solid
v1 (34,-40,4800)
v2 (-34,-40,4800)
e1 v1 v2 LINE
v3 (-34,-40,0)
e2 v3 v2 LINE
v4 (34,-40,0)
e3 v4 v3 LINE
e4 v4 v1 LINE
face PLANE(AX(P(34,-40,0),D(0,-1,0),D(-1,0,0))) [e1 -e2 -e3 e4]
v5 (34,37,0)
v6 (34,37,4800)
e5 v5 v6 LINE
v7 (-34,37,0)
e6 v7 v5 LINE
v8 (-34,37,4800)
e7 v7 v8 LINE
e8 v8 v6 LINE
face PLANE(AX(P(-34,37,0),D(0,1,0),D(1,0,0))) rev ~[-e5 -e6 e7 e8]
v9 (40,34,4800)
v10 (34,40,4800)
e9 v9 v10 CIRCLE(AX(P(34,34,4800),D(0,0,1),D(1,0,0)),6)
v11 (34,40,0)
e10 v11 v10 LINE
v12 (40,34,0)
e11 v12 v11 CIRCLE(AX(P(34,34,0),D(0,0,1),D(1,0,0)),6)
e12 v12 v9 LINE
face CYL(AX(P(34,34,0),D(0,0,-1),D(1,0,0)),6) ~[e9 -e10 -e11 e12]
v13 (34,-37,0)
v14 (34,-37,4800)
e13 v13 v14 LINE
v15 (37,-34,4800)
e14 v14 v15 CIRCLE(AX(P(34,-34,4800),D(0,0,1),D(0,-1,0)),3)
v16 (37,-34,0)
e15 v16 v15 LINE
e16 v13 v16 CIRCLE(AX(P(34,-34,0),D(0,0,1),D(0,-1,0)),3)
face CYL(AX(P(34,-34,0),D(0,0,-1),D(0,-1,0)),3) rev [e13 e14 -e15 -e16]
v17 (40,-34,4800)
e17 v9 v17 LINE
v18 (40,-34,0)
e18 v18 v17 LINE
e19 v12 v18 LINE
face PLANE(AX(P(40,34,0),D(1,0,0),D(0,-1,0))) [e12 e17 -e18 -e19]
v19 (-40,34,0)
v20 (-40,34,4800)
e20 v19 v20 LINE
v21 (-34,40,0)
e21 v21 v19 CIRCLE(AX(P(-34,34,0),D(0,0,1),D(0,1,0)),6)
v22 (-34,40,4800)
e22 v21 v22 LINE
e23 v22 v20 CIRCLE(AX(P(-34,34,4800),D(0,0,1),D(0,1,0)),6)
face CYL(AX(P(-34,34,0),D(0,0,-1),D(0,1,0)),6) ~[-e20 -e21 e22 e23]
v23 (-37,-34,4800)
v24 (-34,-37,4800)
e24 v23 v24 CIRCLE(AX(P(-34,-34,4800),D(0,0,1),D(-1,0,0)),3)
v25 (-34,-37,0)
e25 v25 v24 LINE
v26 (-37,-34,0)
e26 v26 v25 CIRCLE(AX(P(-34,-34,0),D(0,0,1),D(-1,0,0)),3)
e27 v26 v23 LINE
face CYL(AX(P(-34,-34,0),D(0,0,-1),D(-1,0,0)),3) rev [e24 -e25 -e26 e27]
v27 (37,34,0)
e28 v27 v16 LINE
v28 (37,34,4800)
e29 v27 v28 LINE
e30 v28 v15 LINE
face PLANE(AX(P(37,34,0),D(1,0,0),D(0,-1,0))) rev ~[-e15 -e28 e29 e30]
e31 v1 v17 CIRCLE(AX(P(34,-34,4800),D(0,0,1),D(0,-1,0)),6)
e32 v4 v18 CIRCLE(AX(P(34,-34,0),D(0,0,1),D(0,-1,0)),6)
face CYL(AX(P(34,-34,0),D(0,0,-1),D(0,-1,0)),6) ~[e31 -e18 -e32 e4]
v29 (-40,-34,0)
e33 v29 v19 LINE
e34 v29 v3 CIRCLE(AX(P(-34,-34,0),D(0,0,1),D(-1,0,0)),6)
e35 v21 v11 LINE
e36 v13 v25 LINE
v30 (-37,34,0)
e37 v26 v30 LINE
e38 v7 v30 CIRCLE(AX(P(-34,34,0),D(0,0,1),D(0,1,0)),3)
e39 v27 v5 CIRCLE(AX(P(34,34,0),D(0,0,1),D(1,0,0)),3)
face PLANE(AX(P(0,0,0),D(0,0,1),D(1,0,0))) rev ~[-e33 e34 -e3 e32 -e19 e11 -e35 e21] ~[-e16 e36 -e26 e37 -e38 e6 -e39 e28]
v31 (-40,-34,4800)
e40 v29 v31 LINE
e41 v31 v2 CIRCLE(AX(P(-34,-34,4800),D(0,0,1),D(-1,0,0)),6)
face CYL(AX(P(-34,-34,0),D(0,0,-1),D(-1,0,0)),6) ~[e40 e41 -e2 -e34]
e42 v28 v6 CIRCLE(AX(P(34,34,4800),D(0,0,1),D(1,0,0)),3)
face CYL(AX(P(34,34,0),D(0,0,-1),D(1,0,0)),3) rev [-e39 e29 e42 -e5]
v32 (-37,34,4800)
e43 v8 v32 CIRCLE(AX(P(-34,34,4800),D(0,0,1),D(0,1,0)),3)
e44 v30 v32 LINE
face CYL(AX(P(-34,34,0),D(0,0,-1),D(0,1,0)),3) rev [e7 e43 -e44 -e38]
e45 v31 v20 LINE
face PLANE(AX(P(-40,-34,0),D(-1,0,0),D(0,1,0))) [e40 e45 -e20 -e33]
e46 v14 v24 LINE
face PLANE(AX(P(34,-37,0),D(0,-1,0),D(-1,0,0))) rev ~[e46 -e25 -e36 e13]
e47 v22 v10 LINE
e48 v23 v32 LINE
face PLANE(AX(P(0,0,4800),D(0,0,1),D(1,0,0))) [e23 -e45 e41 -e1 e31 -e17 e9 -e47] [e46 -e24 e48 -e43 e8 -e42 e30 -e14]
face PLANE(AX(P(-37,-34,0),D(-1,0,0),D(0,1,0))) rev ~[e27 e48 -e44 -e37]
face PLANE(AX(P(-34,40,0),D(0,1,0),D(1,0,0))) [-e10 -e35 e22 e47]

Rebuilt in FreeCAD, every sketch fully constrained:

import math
import FreeCAD as App
import Part
import Sketcher
Q = App.Units.Quantity

doc = App.newDocument("Part")
params = doc.addObject("Spreadsheet::Sheet", "Params")
for row, (alias, value) in enumerate([
    ("sketch1_radius", "6 mm"),
    ("sketch1_radius2", "3 mm"),
    ("pad1_length", "4800 mm"),
], start=1):
    params.set(f"A{row}", alias)
    params.set(f"B{row}", "=" + value)
    params.setAlias(f"B{row}", alias)

body = doc.addObject("PartDesign::Body", "Body")

sketch1 = doc.addObject("Sketcher::SketchObject", "Sketch")
body.addObject(sketch1)
sketch1.AttachmentSupport = (doc.XY_Plane, [""])
sketch1.MapMode = "FlatFace"
sketch1.addGeometry([
    Part.LineSegment(App.Vector(-40, 34, 0), App.Vector(-40, -34, 0)),
    Part.ArcOfCircle(Part.Circle(App.Vector(-34, -34, 0), App.Vector(0, 0, 1), 6), math.radians(180), math.radians(270)),
    Part.LineSegment(App.Vector(-34, -40, 0), App.Vector(34, -40, 0)),
    Part.ArcOfCircle(Part.Circle(App.Vector(34, -34, 0), App.Vector(0, 0, 1), 6), math.radians(-90), math.radians(0)),
    Part.LineSegment(App.Vector(40, -34, 0), App.Vector(40, 34, 0)),
    Part.ArcOfCircle(Part.Circle(App.Vector(34, 34, 0), App.Vector(0, 0, 1), 6), math.radians(0), math.radians(90)),
    Part.LineSegment(App.Vector(34, 40, 0), App.Vector(-34, 40, 0)),
    Part.ArcOfCircle(Part.Circle(App.Vector(-34, 34, 0), App.Vector(0, 0, 1), 6), math.radians(90), math.radians(180)),
    Part.ArcOfCircle(Part.Circle(App.Vector(-34, 34, 0), App.Vector(0, 0, 1), 3), math.radians(90), math.radians(180)),
    Part.LineSegment(App.Vector(-34, 37, 0), App.Vector(34, 37, 0)),
    Part.ArcOfCircle(Part.Circle(App.Vector(34, 34, 0), App.Vector(0, 0, 1), 3), math.radians(0), math.radians(90)),
    Part.LineSegment(App.Vector(37, 34, 0), App.Vector(37, -34, 0)),
    Part.ArcOfCircle(Part.Circle(App.Vector(34, -34, 0), App.Vector(0, 0, 1), 3), math.radians(-90), math.radians(0)),
    Part.LineSegment(App.Vector(34, -37, 0), App.Vector(-34, -37, 0)),
    Part.ArcOfCircle(Part.Circle(App.Vector(-34, -34, 0), App.Vector(0, 0, 1), 3), math.radians(180), math.radians(270)),
    Part.LineSegment(App.Vector(-37, -34, 0), App.Vector(-37, 34, 0)),
], False)
sketch1.addConstraint([
    Sketcher.Constraint("Tangent", 0, 2, 1, 1),
    Sketcher.Constraint("Tangent", 1, 2, 2, 1),
    Sketcher.Constraint("Tangent", 2, 2, 3, 1),
    Sketcher.Constraint("Tangent", 3, 2, 4, 1),
    Sketcher.Constraint("Tangent", 4, 2, 5, 1),
    Sketcher.Constraint("Tangent", 5, 2, 6, 1),
    Sketcher.Constraint("Tangent", 6, 2, 7, 1),
    Sketcher.Constraint("Tangent", 7, 2, 0, 1),
    Sketcher.Constraint("Tangent", 8, 1, 9, 1),
    Sketcher.Constraint("Tangent", 9, 2, 10, 2),
    Sketcher.Constraint("Tangent", 10, 1, 11, 1),
    Sketcher.Constraint("Tangent", 11, 2, 12, 2),
    Sketcher.Constraint("Tangent", 12, 1, 13, 1),
    Sketcher.Constraint("Tangent", 13, 2, 14, 2),
    Sketcher.Constraint("Tangent", 14, 1, 15, 1),
    Sketcher.Constraint("Tangent", 15, 2, 8, 2),
    Sketcher.Constraint("Vertical", 0),
    Sketcher.Constraint("Horizontal", 2),
    Sketcher.Constraint("Vertical", 4),
    Sketcher.Constraint("Horizontal", 6),
    Sketcher.Constraint("Horizontal", 9),
    Sketcher.Constraint("Vertical", 11),
    Sketcher.Constraint("Horizontal", 13),
    Sketcher.Constraint("Vertical", 15),
    Sketcher.Constraint("Coincident", 8, 3, 7, 3),
    Sketcher.Constraint("Coincident", 10, 3, 5, 3),
    Sketcher.Constraint("Coincident", 12, 3, 3, 3),
    Sketcher.Constraint("Equal", 1, 3),
    Sketcher.Constraint("Equal", 3, 5),
    Sketcher.Constraint("Equal", 5, 7),
    Sketcher.Constraint("Equal", 12, 14),
    Sketcher.Constraint("Symmetric", 1, 3, 5, 3, -1, 1),
    Sketcher.Constraint("Equal", 13, 0),
    Sketcher.Constraint("Radius", 1, Q("6 mm")),
    Sketcher.Constraint("Radius", 8, Q("3 mm")),
    Sketcher.Constraint("DistanceX", 0, 2, -1, 1, Q("40 mm")),
])
sketch1.setExpression("Constraints[33]", "Params.sketch1_radius")
sketch1.setExpression("Constraints[34]", "Params.sketch1_radius2")
pad1 = doc.addObject("PartDesign::Pad", "Pad")
body.addObject(pad1)
pad1.Profile = sketch1
pad1.setExpression("Length", "Params.pad1_length")

doc.recompute()
